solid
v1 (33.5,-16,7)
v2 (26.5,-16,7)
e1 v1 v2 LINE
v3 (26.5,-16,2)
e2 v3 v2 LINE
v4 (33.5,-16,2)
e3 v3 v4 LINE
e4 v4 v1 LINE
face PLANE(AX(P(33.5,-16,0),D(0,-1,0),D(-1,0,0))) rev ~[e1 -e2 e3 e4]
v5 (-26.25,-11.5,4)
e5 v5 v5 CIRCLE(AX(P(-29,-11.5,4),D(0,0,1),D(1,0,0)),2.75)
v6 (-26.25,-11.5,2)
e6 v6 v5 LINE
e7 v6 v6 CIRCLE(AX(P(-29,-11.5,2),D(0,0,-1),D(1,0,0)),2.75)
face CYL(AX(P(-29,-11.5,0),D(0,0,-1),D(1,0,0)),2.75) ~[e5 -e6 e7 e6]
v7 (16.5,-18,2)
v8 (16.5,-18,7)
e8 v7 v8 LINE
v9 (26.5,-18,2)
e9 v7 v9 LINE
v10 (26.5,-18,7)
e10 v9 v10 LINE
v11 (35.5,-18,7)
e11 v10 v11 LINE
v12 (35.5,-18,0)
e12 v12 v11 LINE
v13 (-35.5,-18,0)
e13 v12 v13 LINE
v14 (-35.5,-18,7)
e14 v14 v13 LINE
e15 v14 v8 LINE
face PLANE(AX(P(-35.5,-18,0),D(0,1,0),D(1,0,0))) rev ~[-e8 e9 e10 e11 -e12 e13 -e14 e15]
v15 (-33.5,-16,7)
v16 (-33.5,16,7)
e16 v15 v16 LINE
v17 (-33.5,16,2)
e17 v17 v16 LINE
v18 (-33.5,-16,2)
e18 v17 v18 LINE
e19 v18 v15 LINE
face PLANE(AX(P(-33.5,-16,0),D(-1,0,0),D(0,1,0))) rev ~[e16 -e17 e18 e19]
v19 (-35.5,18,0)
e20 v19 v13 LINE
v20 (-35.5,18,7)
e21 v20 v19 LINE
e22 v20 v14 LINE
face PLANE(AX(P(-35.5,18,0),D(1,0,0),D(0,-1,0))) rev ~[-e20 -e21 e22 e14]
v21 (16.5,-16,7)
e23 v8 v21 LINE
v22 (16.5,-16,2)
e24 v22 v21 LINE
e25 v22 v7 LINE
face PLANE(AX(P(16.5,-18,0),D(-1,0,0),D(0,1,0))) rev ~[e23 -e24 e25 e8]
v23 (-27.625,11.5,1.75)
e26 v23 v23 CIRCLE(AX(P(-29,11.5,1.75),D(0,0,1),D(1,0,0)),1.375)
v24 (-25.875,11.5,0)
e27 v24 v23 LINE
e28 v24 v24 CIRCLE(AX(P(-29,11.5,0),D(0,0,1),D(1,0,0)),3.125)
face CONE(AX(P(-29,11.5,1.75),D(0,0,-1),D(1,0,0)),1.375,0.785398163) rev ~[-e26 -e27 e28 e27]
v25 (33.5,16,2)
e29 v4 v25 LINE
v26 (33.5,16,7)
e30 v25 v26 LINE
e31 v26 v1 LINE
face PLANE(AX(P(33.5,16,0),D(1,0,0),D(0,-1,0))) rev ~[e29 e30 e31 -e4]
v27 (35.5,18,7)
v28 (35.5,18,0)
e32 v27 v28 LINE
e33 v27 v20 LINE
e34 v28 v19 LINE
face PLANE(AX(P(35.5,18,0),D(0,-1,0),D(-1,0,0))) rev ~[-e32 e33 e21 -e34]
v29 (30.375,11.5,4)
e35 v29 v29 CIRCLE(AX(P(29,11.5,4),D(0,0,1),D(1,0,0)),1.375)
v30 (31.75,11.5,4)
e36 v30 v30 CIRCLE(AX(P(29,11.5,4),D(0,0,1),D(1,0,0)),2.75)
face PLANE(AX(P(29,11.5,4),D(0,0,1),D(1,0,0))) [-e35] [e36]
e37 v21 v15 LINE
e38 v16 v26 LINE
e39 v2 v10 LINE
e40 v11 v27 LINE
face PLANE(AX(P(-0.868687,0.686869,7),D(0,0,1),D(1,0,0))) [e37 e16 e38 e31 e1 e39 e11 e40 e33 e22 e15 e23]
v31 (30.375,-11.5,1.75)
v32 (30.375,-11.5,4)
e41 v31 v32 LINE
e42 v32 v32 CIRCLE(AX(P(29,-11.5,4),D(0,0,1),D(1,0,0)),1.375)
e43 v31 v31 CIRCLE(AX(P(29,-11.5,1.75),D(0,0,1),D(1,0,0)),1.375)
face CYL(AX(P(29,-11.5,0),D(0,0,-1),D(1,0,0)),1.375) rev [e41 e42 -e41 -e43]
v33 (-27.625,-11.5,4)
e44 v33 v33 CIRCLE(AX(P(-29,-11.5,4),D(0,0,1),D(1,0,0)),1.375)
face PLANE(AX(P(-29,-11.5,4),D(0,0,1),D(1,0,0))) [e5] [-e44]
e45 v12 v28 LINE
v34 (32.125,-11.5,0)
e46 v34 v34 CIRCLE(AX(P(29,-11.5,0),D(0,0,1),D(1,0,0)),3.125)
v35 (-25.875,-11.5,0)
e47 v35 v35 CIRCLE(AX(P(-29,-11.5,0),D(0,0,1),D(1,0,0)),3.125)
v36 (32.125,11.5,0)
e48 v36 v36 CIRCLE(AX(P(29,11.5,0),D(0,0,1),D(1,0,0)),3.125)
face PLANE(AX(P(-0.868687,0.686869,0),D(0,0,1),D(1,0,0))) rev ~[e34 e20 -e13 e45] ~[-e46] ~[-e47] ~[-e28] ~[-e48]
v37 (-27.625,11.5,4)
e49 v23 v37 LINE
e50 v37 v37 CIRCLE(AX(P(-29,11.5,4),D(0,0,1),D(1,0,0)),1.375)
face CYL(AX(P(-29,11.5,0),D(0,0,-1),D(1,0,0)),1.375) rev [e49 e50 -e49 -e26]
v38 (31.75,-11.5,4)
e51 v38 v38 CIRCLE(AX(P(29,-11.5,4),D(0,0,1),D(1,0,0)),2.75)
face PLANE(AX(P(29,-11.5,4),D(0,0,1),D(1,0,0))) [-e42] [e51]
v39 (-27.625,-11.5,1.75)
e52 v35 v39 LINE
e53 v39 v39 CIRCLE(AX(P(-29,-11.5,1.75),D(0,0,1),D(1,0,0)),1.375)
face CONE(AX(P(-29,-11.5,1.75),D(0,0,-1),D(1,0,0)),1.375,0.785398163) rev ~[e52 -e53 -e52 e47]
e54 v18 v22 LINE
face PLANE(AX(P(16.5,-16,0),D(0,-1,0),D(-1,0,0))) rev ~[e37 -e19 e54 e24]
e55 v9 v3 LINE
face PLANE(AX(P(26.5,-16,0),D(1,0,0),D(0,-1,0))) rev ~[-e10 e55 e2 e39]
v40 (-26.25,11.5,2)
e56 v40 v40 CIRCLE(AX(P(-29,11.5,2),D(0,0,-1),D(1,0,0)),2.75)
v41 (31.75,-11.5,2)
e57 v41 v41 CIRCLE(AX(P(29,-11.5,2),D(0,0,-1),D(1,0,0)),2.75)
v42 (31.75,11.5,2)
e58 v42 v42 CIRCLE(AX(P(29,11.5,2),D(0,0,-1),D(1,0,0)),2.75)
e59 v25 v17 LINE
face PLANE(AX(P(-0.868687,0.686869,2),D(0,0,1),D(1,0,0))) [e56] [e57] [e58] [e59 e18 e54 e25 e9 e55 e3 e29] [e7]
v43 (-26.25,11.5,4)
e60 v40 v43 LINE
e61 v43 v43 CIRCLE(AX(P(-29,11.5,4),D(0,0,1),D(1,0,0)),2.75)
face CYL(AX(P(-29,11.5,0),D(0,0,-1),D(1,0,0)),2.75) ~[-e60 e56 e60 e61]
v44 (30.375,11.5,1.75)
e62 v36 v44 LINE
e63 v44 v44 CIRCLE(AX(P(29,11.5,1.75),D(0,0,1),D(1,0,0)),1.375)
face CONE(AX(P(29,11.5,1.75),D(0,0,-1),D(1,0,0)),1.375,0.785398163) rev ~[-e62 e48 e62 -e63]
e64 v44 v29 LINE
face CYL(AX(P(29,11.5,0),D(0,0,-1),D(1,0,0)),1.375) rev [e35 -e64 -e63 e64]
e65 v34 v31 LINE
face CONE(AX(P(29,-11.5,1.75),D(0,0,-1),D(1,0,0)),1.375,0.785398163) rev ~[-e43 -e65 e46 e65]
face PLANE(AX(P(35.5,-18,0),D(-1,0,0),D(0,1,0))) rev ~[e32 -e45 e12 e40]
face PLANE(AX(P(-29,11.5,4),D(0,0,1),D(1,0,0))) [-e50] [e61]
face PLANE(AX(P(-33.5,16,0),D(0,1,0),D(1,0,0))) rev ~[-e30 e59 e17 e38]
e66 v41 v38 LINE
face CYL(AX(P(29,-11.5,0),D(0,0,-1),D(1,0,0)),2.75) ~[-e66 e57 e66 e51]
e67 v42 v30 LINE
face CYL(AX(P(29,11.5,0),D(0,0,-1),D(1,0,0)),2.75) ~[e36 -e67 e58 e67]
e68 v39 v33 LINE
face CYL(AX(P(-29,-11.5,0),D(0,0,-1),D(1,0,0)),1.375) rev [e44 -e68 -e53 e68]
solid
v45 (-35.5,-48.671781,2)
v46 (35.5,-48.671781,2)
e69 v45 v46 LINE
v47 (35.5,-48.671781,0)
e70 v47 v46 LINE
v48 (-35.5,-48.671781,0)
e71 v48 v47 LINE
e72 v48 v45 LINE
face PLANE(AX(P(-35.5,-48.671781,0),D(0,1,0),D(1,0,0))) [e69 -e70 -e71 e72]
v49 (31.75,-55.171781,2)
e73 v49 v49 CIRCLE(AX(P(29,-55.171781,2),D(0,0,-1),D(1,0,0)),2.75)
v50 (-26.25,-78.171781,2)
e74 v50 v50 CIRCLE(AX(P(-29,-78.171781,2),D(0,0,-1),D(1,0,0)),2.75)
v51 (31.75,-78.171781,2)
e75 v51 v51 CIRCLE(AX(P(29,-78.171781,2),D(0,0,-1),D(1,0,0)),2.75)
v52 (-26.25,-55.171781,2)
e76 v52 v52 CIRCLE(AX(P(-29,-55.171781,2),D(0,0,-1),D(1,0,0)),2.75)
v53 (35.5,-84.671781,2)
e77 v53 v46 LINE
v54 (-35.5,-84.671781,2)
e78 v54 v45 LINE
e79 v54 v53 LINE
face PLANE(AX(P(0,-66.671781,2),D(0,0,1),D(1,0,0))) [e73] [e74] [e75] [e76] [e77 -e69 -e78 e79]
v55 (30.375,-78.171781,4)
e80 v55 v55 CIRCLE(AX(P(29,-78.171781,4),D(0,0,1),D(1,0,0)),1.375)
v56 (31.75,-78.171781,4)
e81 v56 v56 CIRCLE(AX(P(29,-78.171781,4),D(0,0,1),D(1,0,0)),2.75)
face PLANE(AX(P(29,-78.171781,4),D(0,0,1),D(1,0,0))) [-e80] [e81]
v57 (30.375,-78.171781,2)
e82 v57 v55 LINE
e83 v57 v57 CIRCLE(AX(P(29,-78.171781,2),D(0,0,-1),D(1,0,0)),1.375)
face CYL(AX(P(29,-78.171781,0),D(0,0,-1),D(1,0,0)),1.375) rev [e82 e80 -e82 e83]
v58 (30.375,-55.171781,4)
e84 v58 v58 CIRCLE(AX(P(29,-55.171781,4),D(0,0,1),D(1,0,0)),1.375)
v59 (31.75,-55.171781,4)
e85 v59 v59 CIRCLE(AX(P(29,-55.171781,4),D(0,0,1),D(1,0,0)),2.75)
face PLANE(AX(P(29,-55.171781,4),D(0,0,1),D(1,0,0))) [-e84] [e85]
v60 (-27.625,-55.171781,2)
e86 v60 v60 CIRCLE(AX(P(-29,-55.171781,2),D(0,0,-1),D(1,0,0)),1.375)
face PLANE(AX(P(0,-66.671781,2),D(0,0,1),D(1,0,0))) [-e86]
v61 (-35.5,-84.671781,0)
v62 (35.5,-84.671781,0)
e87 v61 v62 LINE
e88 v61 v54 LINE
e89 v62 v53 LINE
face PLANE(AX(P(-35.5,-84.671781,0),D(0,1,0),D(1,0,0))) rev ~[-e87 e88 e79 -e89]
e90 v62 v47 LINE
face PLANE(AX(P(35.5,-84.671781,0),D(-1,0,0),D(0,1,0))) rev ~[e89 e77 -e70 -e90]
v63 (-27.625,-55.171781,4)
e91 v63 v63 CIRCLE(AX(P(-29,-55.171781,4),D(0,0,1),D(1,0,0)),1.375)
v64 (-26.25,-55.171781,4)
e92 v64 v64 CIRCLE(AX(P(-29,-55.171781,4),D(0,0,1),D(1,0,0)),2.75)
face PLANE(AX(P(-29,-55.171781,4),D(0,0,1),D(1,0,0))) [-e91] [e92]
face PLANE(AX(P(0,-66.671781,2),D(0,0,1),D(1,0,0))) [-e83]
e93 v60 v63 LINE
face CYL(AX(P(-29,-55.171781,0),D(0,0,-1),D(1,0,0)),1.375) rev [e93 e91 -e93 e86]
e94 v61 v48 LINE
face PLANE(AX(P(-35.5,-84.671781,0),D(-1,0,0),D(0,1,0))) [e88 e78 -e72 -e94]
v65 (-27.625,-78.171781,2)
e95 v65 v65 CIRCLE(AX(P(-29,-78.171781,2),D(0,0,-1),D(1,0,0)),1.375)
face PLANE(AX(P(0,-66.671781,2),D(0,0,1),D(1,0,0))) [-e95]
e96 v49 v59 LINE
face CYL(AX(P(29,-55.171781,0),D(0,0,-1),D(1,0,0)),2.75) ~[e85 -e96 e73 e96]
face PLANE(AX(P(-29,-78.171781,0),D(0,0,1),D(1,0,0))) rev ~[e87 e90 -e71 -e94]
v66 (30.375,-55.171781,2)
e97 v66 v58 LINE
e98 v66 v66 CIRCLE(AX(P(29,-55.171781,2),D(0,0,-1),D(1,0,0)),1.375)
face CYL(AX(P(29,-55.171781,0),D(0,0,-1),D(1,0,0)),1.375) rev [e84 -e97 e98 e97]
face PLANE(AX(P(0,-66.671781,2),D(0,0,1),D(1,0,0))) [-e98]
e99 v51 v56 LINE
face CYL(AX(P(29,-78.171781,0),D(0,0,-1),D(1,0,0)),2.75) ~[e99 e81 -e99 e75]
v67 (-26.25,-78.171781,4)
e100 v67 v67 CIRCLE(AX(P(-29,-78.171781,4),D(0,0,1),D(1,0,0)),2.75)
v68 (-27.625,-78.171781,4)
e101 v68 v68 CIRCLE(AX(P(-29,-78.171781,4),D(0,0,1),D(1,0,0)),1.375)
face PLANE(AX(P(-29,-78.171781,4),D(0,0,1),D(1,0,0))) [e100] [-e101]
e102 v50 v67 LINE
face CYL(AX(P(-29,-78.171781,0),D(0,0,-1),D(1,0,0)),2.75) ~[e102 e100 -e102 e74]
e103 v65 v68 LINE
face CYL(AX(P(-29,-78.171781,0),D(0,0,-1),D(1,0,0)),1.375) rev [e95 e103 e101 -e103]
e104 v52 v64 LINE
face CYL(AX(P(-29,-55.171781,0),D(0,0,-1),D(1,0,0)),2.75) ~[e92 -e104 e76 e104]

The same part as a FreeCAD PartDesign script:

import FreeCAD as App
import Part
import Sketcher
Q = App.Units.Quantity


def edges_at(feature, points):
    """Names of the edges that pass closest to the given points."""
    edges = feature.Shape.Edges
    near = lambda p: min(range(len(edges)), key=lambda i: edges[i].distToShape(Part.Vertex(*p))[0])
    return sorted({f"Edge{near(p) + 1}" for p in points})


def add_polygon(sketch, points):
    """Adds a closed chain of lines whose ends are joined by coincident constraints."""
    first, n = sketch.GeometryCount, len(points)
    for a, b in zip(points, points[1:] + points[:1]):
        sketch.addGeometry(Part.LineSegment(App.Vector(*a, 0), App.Vector(*b, 0)), False)
    for i in range(n):
        sketch.addConstraint(Sketcher.Constraint("Coincident", first + i, 2, first + (i + 1) % n, 1))

doc = App.newDocument("Part")
body = doc.addObject("PartDesign::Body", "Body")

sketch1 = doc.addObject("Sketcher::SketchObject", "Sketch")
body.addObject(sketch1)
sketch1.AttachmentSupport = (doc.XY_Plane, [""])
sketch1.MapMode = "FlatFace"
add_polygon(sketch1, [(35.5, -18), (35.5, 18), (-35.5, 18), (-35.5, -18)])
sketch1.addGeometry(Part.Circle(App.Vector(-29, -11.5, 0), App.Vector(0, 0, 1), 1.4), False)
sketch1.addGeometry(Part.Circle(App.Vector(29, -11.5, 0), App.Vector(0, 0, 1), 1.4), False)
sketch1.addGeometry(Part.Circle(App.Vector(-29, 11.5, 0), App.Vector(0, 0, 1), 1.4), False)
sketch1.addGeometry(Part.Circle(App.Vector(29, 11.5, 0), App.Vector(0, 0, 1), 1.4), False)
sketch1.addConstraint([
    Sketcher.Constraint("Vertical", 0),
    Sketcher.Constraint("Horizontal", 1),
    Sketcher.Constraint("Vertical", 2),
    Sketcher.Constraint("Horizontal", 3),
    Sketcher.Constraint("Equal", 4, 5),
    Sketcher.Constraint("Equal", 5, 6),
    Sketcher.Constraint("Equal", 6, 7),
    Sketcher.Constraint("Symmetric", 5, 3, 6, 3, -1, 1),
    Sketcher.Constraint("Symmetric", 4, 3, 7, 3, -1, 1),
    Sketcher.Constraint("Symmetric", 0, 2, 2, 2, -1, 1),
    Sketcher.Constraint("Symmetric", 4, 3, 5, 3, -2),
    Sketcher.Constraint("Diameter", 4, Q("2.75 mm")),
    Sketcher.Constraint("DistanceX", 1, 2, 1, 1, Q("71 mm")),
    Sketcher.Constraint("DistanceY", 0, 1, 0, 2, Q("36 mm")),
    Sketcher.Constraint("DistanceX", 4, 3, -1, 1, Q("29 mm")),
    Sketcher.Constraint("DistanceY", 4, 3, 6, 3, Q("23 mm")),
])
pad1 = doc.addObject("PartDesign::Pad", "Pad")
body.addObject(pad1)
pad1.Profile = sketch1
pad1.Length = 2

sketch2 = doc.addObject("Sketcher::SketchObject", "Sketch001")
body.addObject(sketch2)
sketch2.AttachmentSupport = (doc.XY_Plane, [""])
sketch2.MapMode = "FlatFace"
sketch2.addGeometry([
    Part.Circle(App.Vector(-29, -11.5, 0), App.Vector(0, 0, 1), 2.8),
    Part.Circle(App.Vector(-29, -11.5, 0), App.Vector(0, 0, 1), 1.4),
    Part.Circle(App.Vector(29, -11.5, 0), App.Vector(0, 0, 1), 2.8),
    Part.Circle(App.Vector(29, -11.5, 0), App.Vector(0, 0, 1), 1.4),
    Part.Circle(App.Vector(29, 11.5, 0), App.Vector(0, 0, 1), 2.8),
    Part.Circle(App.Vector(29, 11.5, 0), App.Vector(0, 0, 1), 1.4),
    Part.Circle(App.Vector(-29, 11.5, 0), App.Vector(0, 0, 1), 2.8),
    Part.Circle(App.Vector(-29, 11.5, 0), App.Vector(0, 0, 1), 1.4),
], False)
sketch2.addConstraint([
    Sketcher.Constraint("Coincident", 1, 3, 0, 3),
    Sketcher.Constraint("Coincident", 3, 3, 2, 3),
    Sketcher.Constraint("Coincident", 5, 3, 4, 3),
    Sketcher.Constraint("Coincident", 7, 3, 6, 3),
    Sketcher.Constraint("Equal", 0, 2),
    Sketcher.Constraint("Equal", 1, 3),
    Sketcher.Constraint("Equal", 2, 4),
    Sketcher.Constraint("Equal", 3, 5),
    Sketcher.Constraint("Equal", 4, 6),
    Sketcher.Constraint("Equal", 5, 7),
    Sketcher.Constraint("Symmetric", 0, 3, 4, 3, -1, 1),
    Sketcher.Constraint("Symmetric", 2, 3, 6, 3, -1, 1),
    Sketcher.Constraint("Symmetric", 0, 3, 2, 3, -2),
    Sketcher.Constraint("Diameter", 0, Q("5.5 mm")),
    Sketcher.Constraint("Diameter", 1, Q("2.75 mm")),
    Sketcher.Constraint("DistanceX", 0, 3, -1, 1, Q("29 mm")),
    Sketcher.Constraint("DistanceY", 2, 3, 4, 3, Q("23 mm")),
])
pad2 = doc.addObject("PartDesign::Pad", "Pad001")
body.addObject(pad2)
pad2.Profile = sketch2
pad2.Length = 4

sketch3 = doc.addObject("Sketcher::SketchObject", "Sketch002")
body.addObject(sketch3)
sketch3.AttachmentSupport = (doc.XY_Plane, [""])
sketch3.MapMode = "FlatFace"
add_polygon(sketch3, [(33.5, -16), (26.5, -16), (26.5, -18), (35.5, -18), (35.5, 18), (-35.5, 18), (-35.5, -18), (16.5, -18), (16.5, -16), (-33.5, -16), (-33.5, 16), (33.5, 16)])
sketch3.addConstraint([
    Sketcher.Constraint("Horizontal", 0),
    Sketcher.Constraint("Vertical", 1),
    Sketcher.Constraint("Horizontal", 2),
    Sketcher.Constraint("Vertical", 3),
    Sketcher.Constraint("Horizontal", 4),
    Sketcher.Constraint("Vertical", 5),
    Sketcher.Constraint("Horizontal", 6),
    Sketcher.Constraint("Vertical", 7),
    Sketcher.Constraint("Horizontal", 8),
    Sketcher.Constraint("Vertical", 9),
    Sketcher.Constraint("Horizontal", 10),
    Sketcher.Constraint("Vertical", 11),
    Sketcher.Constraint("Symmetric", 2, 2, 4, 2, -1, 1),
    Sketcher.Constraint("Symmetric", 8, 2, 10, 2, -1, 1),
    Sketcher.Constraint("Horizontal", 2, 2, 5, 2),
    Sketcher.Constraint("Horizontal", 0, 2, 7, 2),
    Sketcher.Constraint("DistanceX", 0, 2, 0, 1, Q("7 mm")),
    Sketcher.Constraint("DistanceX", 2, 1, 2, 2, Q("9 mm")),
    Sketcher.Constraint("DistanceX", 4, 2, 4, 1, Q("71 mm")),
    Sketcher.Constraint("DistanceX", 6, 1, 6, 2, Q("52 mm")),
    Sketcher.Constraint("DistanceY", 1, 2, 1, 1, Q("2 mm")),
    Sketcher.Constraint("DistanceY", 3, 1, 3, 2, Q("36 mm")),
])
pad3 = doc.addObject("PartDesign::Pad", "Pad002")
body.addObject(pad3)
pad3.Profile = sketch3
pad3.Length = 7
doc.recompute()

chamfer = doc.addObject("PartDesign::Chamfer", "Chamfer")
body.addObject(chamfer)
chamfer.Base = (pad3, edges_at(pad3, [
    (27.625, -11.5, 0),
    (27.625, 11.5, 0),
    (-30.375, 11.5, 0),
    (-30.375, -11.5, 0),
]))
chamfer.Size = 1.75
body2 = doc.addObject("PartDesign::Body", "Body001")

sketch4 = doc.addObject("Sketcher::SketchObject", "Sketch003")
body2.addObject(sketch4)
sketch4.AttachmentSupport = (doc.getObject("XY_Plane001"), [""])
sketch4.MapMode = "FlatFace"
add_polygon(sketch4, [(-36, -49), (-36, -85), (36, -85), (36, -49)])
sketch4.addConstraint([
    Sketcher.Constraint("Vertical", 0),
    Sketcher.Constraint("Horizontal", 1),
    Sketcher.Constraint("Vertical", 2),
    Sketcher.Constraint("Horizontal", 3),
    Sketcher.Constraint("DistanceX", 1, 1, 1, 2, Q("71 mm")),
    Sketcher.Constraint("DistanceY", 0, 2, 0, 1, Q("36 mm")),
    Sketcher.Constraint("DistanceX", 0, 2, -1, 1, Q("35.5 mm")),
    Sketcher.Constraint("DistanceY", 0, 2, -1, 1, Q("84.671781 mm")),
])
pad4 = doc.addObject("PartDesign::Pad", "Pad003")
body2.addObject(pad4)
pad4.Profile = sketch4
pad4.Length = 2

sketch5 = doc.addObject("Sketcher::SketchObject", "Sketch004")
body2.addObject(sketch5)
sketch5.AttachmentSupport = (doc.getObject("XY_Plane001"), [""])
sketch5.MapMode = "FlatFace"
sketch5.addGeometry([
    Part.Circle(App.Vector(-29, -78.2, 0), App.Vector(0, 0, 1), 2.8),
    Part.Circle(App.Vector(-29, -78.2, 0), App.Vector(0, 0, 1), 1.4),
    Part.Circle(App.Vector(-29, -55.2, 0), App.Vector(0, 0, 1), 2.8),
    Part.Circle(App.Vector(-29, -55.2, 0), App.Vector(0, 0, 1), 1.4),
    Part.Circle(App.Vector(29, -78.2, 0), App.Vector(0, 0, 1), 2.8),
    Part.Circle(App.Vector(29, -78.2, 0), App.Vector(0, 0, 1), 1.4),
    Part.Circle(App.Vector(29, -55.2, 0), App.Vector(0, 0, 1), 2.8),
    Part.Circle(App.Vector(29, -55.2, 0), App.Vector(0, 0, 1), 1.4),
], False)
sketch5.addConstraint([
    Sketcher.Constraint("Coincident", 1, 3, 0, 3),
    Sketcher.Constraint("Coincident", 3, 3, 2, 3),
    Sketcher.Constraint("Coincident", 5, 3, 4, 3),
    Sketcher.Constraint("Coincident", 7, 3, 6, 3),
    Sketcher.Constraint("Equal", 0, 2),
    Sketcher.Constraint("Equal", 1, 3),
    Sketcher.Constraint("Equal", 2, 4),
    Sketcher.Constraint("Equal", 3, 5),
    Sketcher.Constraint("Equal", 4, 6),
    Sketcher.Constraint("Equal", 5, 7),
    Sketcher.Constraint("Symmetric", 0, 3, 4, 3, -2),
    Sketcher.Constraint("Symmetric", 2, 3, 6, 3, -2),
    Sketcher.Constraint("Vertical", 1, 3, 2, 3),
    Sketcher.Constraint("Diameter", 0, Q("5.5 mm")),
    Sketcher.Constraint("Diameter", 1, Q("2.75 mm")),
    Sketcher.Constraint("DistanceX", 0, 3, -1, 1, Q("29 mm")),
    Sketcher.Constraint("DistanceY", 0, 3, 2, 3, Q("23 mm")),
    Sketcher.Constraint("DistanceY", 0, 3, -1, 1, Q("78.171781 mm")),
])
pad5 = doc.addObject("PartDesign::Pad", "Pad004")
body2.addObject(pad5)
pad5.Profile = sketch5
pad5.Length = 4

doc.recompute()
